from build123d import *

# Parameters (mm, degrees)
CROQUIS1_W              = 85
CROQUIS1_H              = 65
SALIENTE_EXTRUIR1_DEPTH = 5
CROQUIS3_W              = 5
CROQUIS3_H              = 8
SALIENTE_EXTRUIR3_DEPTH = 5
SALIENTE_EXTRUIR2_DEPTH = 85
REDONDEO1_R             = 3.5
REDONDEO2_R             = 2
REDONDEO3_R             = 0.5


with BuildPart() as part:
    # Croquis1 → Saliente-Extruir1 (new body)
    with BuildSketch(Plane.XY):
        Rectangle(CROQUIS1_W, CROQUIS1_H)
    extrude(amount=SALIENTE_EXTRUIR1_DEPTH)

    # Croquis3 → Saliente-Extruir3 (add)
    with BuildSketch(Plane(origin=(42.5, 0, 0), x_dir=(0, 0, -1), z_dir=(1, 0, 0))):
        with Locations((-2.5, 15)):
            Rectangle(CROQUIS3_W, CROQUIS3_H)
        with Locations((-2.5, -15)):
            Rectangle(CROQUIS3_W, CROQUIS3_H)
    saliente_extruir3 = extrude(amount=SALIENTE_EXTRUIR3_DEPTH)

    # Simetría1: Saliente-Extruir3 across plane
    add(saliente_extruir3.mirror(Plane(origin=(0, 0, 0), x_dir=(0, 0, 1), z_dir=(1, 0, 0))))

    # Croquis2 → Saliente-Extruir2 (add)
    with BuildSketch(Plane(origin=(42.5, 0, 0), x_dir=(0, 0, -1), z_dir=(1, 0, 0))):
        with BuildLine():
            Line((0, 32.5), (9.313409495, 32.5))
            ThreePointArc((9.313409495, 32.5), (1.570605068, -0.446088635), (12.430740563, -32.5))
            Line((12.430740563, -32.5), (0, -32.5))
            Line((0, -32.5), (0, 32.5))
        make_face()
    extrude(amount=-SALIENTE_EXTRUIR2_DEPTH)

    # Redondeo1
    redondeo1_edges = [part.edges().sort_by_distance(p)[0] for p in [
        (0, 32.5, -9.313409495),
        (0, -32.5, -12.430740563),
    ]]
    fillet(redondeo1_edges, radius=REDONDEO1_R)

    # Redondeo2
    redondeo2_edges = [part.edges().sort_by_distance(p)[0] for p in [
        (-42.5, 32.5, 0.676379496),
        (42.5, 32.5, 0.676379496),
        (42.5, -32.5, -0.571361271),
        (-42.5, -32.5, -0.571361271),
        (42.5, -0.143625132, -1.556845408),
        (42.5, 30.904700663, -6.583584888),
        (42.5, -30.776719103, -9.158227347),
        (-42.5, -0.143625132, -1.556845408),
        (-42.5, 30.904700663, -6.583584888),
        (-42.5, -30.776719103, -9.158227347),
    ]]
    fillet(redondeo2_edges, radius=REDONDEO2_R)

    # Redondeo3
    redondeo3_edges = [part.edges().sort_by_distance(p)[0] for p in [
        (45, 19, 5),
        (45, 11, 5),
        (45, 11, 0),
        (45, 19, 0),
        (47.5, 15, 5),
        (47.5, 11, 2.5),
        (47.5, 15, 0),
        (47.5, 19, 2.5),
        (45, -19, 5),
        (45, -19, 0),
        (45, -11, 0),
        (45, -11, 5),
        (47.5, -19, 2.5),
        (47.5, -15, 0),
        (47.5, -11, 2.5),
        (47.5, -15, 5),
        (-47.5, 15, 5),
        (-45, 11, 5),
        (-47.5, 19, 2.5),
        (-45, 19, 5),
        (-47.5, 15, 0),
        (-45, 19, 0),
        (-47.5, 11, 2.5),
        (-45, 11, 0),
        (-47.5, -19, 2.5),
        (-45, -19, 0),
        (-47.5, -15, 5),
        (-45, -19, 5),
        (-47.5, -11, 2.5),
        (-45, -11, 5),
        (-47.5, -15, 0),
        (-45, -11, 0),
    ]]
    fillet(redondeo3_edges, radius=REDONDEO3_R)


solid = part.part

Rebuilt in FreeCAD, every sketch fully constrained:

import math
import FreeCAD as App
import Part
import Sketcher


def edges_at(feature, points):
    """Names of the edges that pass closest to the given points."""
    edges = feature.Shape.Edges
    near = lambda p: min(range(len(edges)), key=lambda i: edges[i].distToShape(Part.Vertex(*p))[0])
    return sorted({f"Edge{near(p) + 1}" for p in points})

doc = App.newDocument("Part")
body = doc.addObject("PartDesign::Body", "Body")

# Sketch on XY plane
sketch1 = doc.addObject("Sketcher::SketchObject", "Sketch")
body.addObject(sketch1)
sketch1.AttachmentSupport = (doc.XY_Plane, [""])
sketch1.MapMode = "FlatFace"
sketch1.addGeometry([
    Part.LineSegment(App.Vector(-42, 32, 0), App.Vector(-42, -32, 0)),
    Part.LineSegment(App.Vector(-42, -32, 0), App.Vector(42, -32, 0)),
    Part.LineSegment(App.Vector(42, -32, 0), App.Vector(42, 32, 0)),
    Part.LineSegment(App.Vector(42, 32, 0), App.Vector(-42, 32, 0)),
], False)
sketch1.addConstraint([
    Sketcher.Constraint("Coincident", 0, 2, 1, 1),
    Sketcher.Constraint("Coincident", 1, 2, 2, 1),
    Sketcher.Constraint("Coincident", 2, 2, 3, 1),
    Sketcher.Constraint("Coincident", 3, 2, 0, 1),
    Sketcher.Constraint("Vertical", 0),
    Sketcher.Constraint("Horizontal", 1),
    Sketcher.Constraint("Vertical", 2),
    Sketcher.Constraint("Horizontal", 3),
    Sketcher.Constraint("Symmetric", 0, 2, 2, 2, -1, 1),
    Sketcher.Constraint("DistanceX", 1, 1, 1, 2, 85.0),
    Sketcher.Constraint("DistanceY", 0, 2, 0, 1, 65.0),
])
pad1 = doc.addObject("PartDesign::Pad", "Pad")
body.addObject(pad1)
pad1.Profile = sketch1
pad1.Length = 5

# Sketch on YZ plane
sketch2 = doc.addObject("Sketcher::SketchObject", "Sketch001")
body.addObject(sketch2)
sketch2.AttachmentSupport = (doc.YZ_Plane, [""])
sketch2.MapMode = "FlatFace"
sketch2.AttachmentOffset = App.Placement(App.Vector(0, 0, 42.5), App.Rotation())
sketch2.addGeometry([
    Part.LineSegment(App.Vector(19, 5, 0), App.Vector(11, 5, 0)),  # 0
    Part.LineSegment(App.Vector(11, 5, 0), App.Vector(11, 0, 0)),  # 1
    Part.LineSegment(App.Vector(11, 0, 0), App.Vector(19, 0, 0)),  # 2
    Part.LineSegment(App.Vector(19, 0, 0), App.Vector(19, 5, 0)),  # 3
    Part.LineSegment(App.Vector(-11, 5, 0), App.Vector(-19, 5, 0)),  # 4
    Part.LineSegment(App.Vector(-19, 5, 0), App.Vector(-19, 0, 0)),  # 5
    Part.LineSegment(App.Vector(-19, 0, 0), App.Vector(-11, 0, 0)),  # 6
    Part.LineSegment(App.Vector(-11, 0, 0), App.Vector(-11, 5, 0)),  # 7
], False)
sketch2.addConstraint([
    Sketcher.Constraint("Coincident", 0, 2, 1, 1),
    Sketcher.Constraint("Coincident", 1, 2, 2, 1),
    Sketcher.Constraint("Coincident", 2, 2, 3, 1),
    Sketcher.Constraint("Coincident", 3, 2, 0, 1),
    Sketcher.Constraint("Coincident", 4, 2, 5, 1),
    Sketcher.Constraint("Coincident", 5, 2, 6, 1),
    Sketcher.Constraint("Coincident", 6, 2, 7, 1),
    Sketcher.Constraint("Coincident", 7, 2, 4, 1),
    Sketcher.Constraint("Horizontal", 0),
    Sketcher.Constraint("Vertical", 1),
    Sketcher.Constraint("Horizontal", 2),
    Sketcher.Constraint("Vertical", 3),
    Sketcher.Constraint("Horizontal", 4),
    Sketcher.Constraint("Vertical", 5),
    Sketcher.Constraint("Horizontal", 6),
    Sketcher.Constraint("Vertical", 7),
    Sketcher.Constraint("Symmetric", 2, 2, 5, 2, -1, 1),
    Sketcher.Constraint("Symmetric", 1, 2, 6, 2, -2),
    Sketcher.Constraint("Horizontal", 3, 2, 4, 2),
    Sketcher.Constraint("DistanceX", 0, 2, 0, 1, 8.0),
    Sketcher.Constraint("DistanceY", 1, 2, 1, 1, 5.0),
    Sketcher.Constraint("DistanceX", -1, 1, 0, 2, 11.0),
])
pad2 = doc.addObject("PartDesign::Pad", "Pad001")
body.addObject(pad2)
pad2.Profile = sketch2
pad2.Length = 5
doc.recompute()

mirrored = doc.addObject("PartDesign::Mirrored", "Mirrored")
body.addObject(mirrored)
mirrored.Originals = [pad2]
mirrored.MirrorPlane = (doc.YZ_Plane, [""])
body.Tip = mirrored

# Sketch on YZ plane
sketch3 = doc.addObject("Sketcher::SketchObject", "Sketch002")
body.addObject(sketch3)
sketch3.AttachmentSupport = (doc.YZ_Plane, [""])
sketch3.MapMode = "FlatFace"
sketch3.AttachmentOffset = App.Placement(App.Vector(0, 0, 42.5), App.Rotation())
sketch3.addGeometry([
    Part.LineSegment(App.Vector(32, -9, 0), App.Vector(32, 0, 0)),
    Part.LineSegment(App.Vector(32, 0, 0), App.Vector(-32, 0, 0)),
    Part.LineSegment(App.Vector(-32, 0, 0), App.Vector(-32, -12, 0)),
    Part.ArcOfCircle(Part.Circle(App.Vector(3, -63, 0), App.Vector(0, 0, 1), 62), math.radians(61), math.radians(125)),
], False)
sketch3.addConstraint([
    Sketcher.Constraint("Coincident", 0, 2, 1, 1),
    Sketcher.Constraint("Coincident", 1, 2, 2, 1),
    Sketcher.Constraint("Coincident", 2, 2, 3, 2),
    Sketcher.Constraint("Coincident", 3, 1, 0, 1),
    Sketcher.Constraint("Vertical", 0),
    Sketcher.Constraint("Horizontal", 1),
    Sketcher.Constraint("Vertical", 2),
    Sketcher.Constraint("Symmetric", 0, 2, 1, 2, -1, 1),
    Sketcher.Constraint("Radius", 3, 61.5),
    Sketcher.Constraint("DistanceX", 1, 2, 1, 1, 65.0),
    Sketcher.Constraint("DistanceY", 3, 3, -1, 1, 63.0),
    Sketcher.Constraint("DistanceX", 3, 3, 0, 2, 30.0),
])
pad3 = doc.addObject("PartDesign::Pad", "Pad002")
body.addObject(pad3)
pad3.Profile = sketch3
pad3.Length = 85
pad3.Reversed = True
doc.recompute()

fillet = doc.addObject("PartDesign::Fillet", "Fillet")
body.addObject(fillet)
fillet.Base = (pad3, edges_at(pad3, [(0, 32.5, -9.313), (0, -32.5, -12.431)]))
fillet.Radius = 3.5
doc.recompute()

fillet2 = doc.addObject("PartDesign::Fillet", "Fillet001")
body.addObject(fillet2)
fillet2.Base = (fillet, edges_at(fillet, [
    (-42.5, 32.5, 0.676),
    (42.5, 32.5, 0.676),
    (42.5, -32.5, -0.571),
    (-42.5, -32.5, -0.571),
    (42.5, -0.144, -1.557),
    (42.5, 30.905, -6.584),
    (42.5, -30.777, -9.158),
    (-42.5, -0.144, -1.557),
    (-42.5, 30.905, -6.584),
    (-42.5, -30.777, -9.158),
]))
fillet2.Radius = 2
doc.recompute()

fillet3 = doc.addObject("PartDesign::Fillet", "Fillet002")
body.addObject(fillet3)
fillet3.Base = (fillet2, edges_at(fillet2, [
    (45, 19, 5),
    (45, 11, 5),
    (45, 11, 0),
    (45, 19, 0),
    (47.5, 15, 5),
    (47.5, 11, 2.5),
    (47.5, 15, 0),
    (47.5, 19, 2.5),
    (45, -19, 5),
    (45, -19, 0),
    (45, -11, 0),
    (45, -11, 5),
    (47.5, -19, 2.5),
    (47.5, -15, 0),
    (47.5, -11, 2.5),
    (47.5, -15, 5),
    (-47.5, 15, 5),
    (-45, 11, 5),
    (-47.5, 19, 2.5),
    (-45, 19, 5),
    (-47.5, 15, 0),
    (-45, 19, 0),
    (-47.5, 11, 2.5),
    (-45, 11, 0),
    (-47.5, -19, 2.5),
    (-45, -19, 0),
    (-47.5, -15, 5),
    (-45, -19, 5),
    (-47.5, -11, 2.5),
    (-45, -11, 5),
    (-47.5, -15, 0),
    (-45, -11, 0),
]))
fillet3.Radius = 0.5

doc.recompute()
